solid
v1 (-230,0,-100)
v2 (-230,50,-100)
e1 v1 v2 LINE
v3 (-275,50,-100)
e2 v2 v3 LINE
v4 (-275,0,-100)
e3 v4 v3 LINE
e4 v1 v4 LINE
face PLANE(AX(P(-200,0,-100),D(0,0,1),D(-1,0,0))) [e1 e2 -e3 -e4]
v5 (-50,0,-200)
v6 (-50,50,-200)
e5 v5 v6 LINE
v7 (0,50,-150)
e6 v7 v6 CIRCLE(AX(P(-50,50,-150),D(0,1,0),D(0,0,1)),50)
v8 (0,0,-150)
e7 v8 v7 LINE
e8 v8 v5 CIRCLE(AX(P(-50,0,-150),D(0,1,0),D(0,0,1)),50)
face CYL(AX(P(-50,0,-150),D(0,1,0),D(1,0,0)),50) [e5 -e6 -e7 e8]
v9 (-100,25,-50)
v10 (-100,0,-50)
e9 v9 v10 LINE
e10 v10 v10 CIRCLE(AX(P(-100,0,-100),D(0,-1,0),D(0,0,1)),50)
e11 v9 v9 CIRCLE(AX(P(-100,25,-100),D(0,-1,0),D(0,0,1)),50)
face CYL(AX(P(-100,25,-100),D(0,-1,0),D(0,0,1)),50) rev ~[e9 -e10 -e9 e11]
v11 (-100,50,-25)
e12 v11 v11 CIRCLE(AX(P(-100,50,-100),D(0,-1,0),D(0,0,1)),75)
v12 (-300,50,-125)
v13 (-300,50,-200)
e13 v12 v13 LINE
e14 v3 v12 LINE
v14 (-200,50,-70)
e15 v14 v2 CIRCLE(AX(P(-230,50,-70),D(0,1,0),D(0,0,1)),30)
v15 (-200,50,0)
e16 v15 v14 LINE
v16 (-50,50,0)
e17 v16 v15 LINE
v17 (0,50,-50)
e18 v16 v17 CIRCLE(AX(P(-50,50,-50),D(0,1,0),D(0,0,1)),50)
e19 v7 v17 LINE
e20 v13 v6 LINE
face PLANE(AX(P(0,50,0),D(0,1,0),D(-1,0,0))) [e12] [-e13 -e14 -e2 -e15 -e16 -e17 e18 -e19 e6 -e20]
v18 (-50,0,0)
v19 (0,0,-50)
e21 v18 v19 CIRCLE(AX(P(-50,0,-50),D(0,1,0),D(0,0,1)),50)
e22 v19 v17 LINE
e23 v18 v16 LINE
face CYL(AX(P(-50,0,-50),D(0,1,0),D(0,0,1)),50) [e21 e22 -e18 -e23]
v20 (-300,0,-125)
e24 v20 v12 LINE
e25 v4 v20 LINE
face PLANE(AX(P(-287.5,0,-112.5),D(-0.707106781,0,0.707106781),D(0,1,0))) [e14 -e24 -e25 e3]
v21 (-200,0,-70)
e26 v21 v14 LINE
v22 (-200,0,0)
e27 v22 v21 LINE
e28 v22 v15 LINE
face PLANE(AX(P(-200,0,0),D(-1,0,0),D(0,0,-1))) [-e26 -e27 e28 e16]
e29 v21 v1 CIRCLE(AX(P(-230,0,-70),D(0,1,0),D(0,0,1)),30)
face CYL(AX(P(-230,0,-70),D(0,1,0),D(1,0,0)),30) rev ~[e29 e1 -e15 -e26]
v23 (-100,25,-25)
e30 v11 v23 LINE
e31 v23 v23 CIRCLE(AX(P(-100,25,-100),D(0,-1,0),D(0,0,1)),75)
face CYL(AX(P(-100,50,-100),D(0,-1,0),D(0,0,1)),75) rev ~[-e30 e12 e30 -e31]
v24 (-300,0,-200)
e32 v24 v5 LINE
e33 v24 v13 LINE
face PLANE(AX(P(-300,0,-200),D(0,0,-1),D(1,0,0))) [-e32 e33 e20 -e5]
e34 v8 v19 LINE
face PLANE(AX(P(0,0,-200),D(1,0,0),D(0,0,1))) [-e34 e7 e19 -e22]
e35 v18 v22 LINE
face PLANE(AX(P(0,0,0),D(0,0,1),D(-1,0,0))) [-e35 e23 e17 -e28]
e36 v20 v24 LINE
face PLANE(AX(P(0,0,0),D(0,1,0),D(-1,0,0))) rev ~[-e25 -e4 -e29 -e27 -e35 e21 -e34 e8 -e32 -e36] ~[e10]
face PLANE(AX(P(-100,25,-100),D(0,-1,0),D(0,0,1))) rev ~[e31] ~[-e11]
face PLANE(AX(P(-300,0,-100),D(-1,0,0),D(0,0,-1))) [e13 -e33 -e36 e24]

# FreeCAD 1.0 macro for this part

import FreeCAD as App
import Part
import Sketcher

V = App.Vector


def edges_at(feature, points):
    """Names of the edges that pass closest to the given points."""
    edges = feature.Shape.Edges
    near = lambda p: min(range(len(edges)), key=lambda i: edges[i].distToShape(Part.Vertex(*p))[0])
    return sorted({f"Edge{near(p) + 1}" for p in points})


def add_polygon(sketch, points):
    """Adds a closed chain of lines whose ends are joined by coincident constraints."""
    first, n = sketch.GeometryCount, len(points)
    for a, b in zip(points, points[1:] + points[:1]):
        sketch.addGeometry(Part.LineSegment(App.Vector(*a, 0), App.Vector(*b, 0)), False)
    for i in range(n):
        sketch.addConstraint(Sketcher.Constraint("Coincident", first + i, 2, first + (i + 1) % n, 1))

doc = App.newDocument("Part")
params = doc.addObject("Spreadsheet::Sheet", "Params")
for row, (alias, value) in enumerate([
    ("sketch1_width", "200 mm"),
    ("pad1_length", "50 mm"),
    ("sketch2_diameter", "100 mm"),
    ("hole_diameter", "100 mm"),
    ("hole_cbore_diameter", "150 mm"),
    ("hole_cbore_depth", "25 mm"),
    ("fillet_radius", "50 mm"),
    ("fillet2_radius", "30 mm"),
    ("chamfer_size", "25 mm"),
], start=1):
    params.set(f"A{row}", alias)
    params.set(f"B{row}", "=" + value)
    params.setAlias(f"B{row}", alias)

body = doc.addObject("PartDesign::Body", "Body")

# Sketch on XZ plane
sketch1 = body.newObject("Sketcher::SketchObject", "Sketch")
sketch1.AttachmentSupport = (doc.getObject("XZ_Plane"), [""])
sketch1.MapMode = "FlatFace"
add_polygon(sketch1, [(-200, 0), (0, 0), (0, -200), (-300, -200), (-300, -100), (-200, -100)])  # lines 0-5
sketch1.addConstraint(Sketcher.Constraint("Horizontal", 0))
sketch1.addConstraint(Sketcher.Constraint("Vertical", 1))
sketch1.addConstraint(Sketcher.Constraint("Horizontal", 2))
sketch1.addConstraint(Sketcher.Constraint("Vertical", 3))
sketch1.addConstraint(Sketcher.Constraint("Horizontal", 4))
sketch1.addConstraint(Sketcher.Constraint("Vertical", 5))
sketch1.addConstraint(Sketcher.Constraint("Coincident", 0, 2, -1, 1))
sketch1.addConstraint(Sketcher.Constraint("Equal", 0, 1))
sketch1.addConstraint(Sketcher.Constraint("Equal", 4, 3))
sketch1.addConstraint(Sketcher.Constraint("Equal", 3, 5))
sketch1.addConstraint(Sketcher.Constraint("DistanceX", 0, 1, 0, 2, 200.0))
sketch1.setExpression("Constraints[16]", "Params.sketch1_width")
pad1 = body.newObject("PartDesign::Pad", "Pad")
pad1.Profile = sketch1
pad1.setExpression("Length", "Params.pad1_length")
pad1.Reversed = True

# Sketch on XZ plane
sketch2 = body.newObject("Sketcher::SketchObject", "Sketch001")
sketch2.AttachmentSupport = (doc.getObject("XZ_Plane"), [""])
sketch2.MapMode = "FlatFace"
sketch2.AttachmentOffset = App.Placement(V(0, 0, -50), App.Rotation())
sketch2.addGeometry(Part.Circle(V(-100, -100, 0), V(0, 0, 1), 50), False)
sketch2.addConstraint(Sketcher.Constraint("Diameter", 0, 100.0))
sketch2.addConstraint(Sketcher.Constraint("DistanceX", 0, 3, -1, 1, 100.0))
sketch2.addConstraint(Sketcher.Constraint("DistanceY", 0, 3, -1, 1, 100.0))
sketch2.setExpression("Constraints[0]", "Params.sketch2_diameter")
doc.recompute()
hole = body.newObject("PartDesign::Hole", "Hole")
hole.Profile = sketch2
hole.ThreadType = "None"
hole.setExpression("Diameter", "Params.hole_diameter")
hole.DepthType = "ThroughAll"
hole.HoleCutType = "Counterbore"
hole.setExpression("HoleCutDiameter", "Params.hole_cbore_diameter")
hole.setExpression("HoleCutDepth", "Params.hole_cbore_depth")
hole.Reversed = True
doc.recompute()

fillet = body.newObject("PartDesign::Fillet", "Fillet")
fillet.Base = (hole, edges_at(hole, [(0, 25, 0), (0, 25, -200)]))
fillet.setExpression("Radius", "Params.fillet_radius")
doc.recompute()

fillet2 = body.newObject("PartDesign::Fillet", "Fillet001")
fillet2.Base = (fillet, edges_at(fillet, [(-200, 25, -100)]))
fillet2.setExpression("Radius", "Params.fillet2_radius")
doc.recompute()

chamfer = body.newObject("PartDesign::Chamfer", "Chamfer")
chamfer.Base = (fillet2, edges_at(fillet2, [(-300, 25, -100)]))
chamfer.setExpression("Size", "Params.chamfer_size")

doc.recompute()
